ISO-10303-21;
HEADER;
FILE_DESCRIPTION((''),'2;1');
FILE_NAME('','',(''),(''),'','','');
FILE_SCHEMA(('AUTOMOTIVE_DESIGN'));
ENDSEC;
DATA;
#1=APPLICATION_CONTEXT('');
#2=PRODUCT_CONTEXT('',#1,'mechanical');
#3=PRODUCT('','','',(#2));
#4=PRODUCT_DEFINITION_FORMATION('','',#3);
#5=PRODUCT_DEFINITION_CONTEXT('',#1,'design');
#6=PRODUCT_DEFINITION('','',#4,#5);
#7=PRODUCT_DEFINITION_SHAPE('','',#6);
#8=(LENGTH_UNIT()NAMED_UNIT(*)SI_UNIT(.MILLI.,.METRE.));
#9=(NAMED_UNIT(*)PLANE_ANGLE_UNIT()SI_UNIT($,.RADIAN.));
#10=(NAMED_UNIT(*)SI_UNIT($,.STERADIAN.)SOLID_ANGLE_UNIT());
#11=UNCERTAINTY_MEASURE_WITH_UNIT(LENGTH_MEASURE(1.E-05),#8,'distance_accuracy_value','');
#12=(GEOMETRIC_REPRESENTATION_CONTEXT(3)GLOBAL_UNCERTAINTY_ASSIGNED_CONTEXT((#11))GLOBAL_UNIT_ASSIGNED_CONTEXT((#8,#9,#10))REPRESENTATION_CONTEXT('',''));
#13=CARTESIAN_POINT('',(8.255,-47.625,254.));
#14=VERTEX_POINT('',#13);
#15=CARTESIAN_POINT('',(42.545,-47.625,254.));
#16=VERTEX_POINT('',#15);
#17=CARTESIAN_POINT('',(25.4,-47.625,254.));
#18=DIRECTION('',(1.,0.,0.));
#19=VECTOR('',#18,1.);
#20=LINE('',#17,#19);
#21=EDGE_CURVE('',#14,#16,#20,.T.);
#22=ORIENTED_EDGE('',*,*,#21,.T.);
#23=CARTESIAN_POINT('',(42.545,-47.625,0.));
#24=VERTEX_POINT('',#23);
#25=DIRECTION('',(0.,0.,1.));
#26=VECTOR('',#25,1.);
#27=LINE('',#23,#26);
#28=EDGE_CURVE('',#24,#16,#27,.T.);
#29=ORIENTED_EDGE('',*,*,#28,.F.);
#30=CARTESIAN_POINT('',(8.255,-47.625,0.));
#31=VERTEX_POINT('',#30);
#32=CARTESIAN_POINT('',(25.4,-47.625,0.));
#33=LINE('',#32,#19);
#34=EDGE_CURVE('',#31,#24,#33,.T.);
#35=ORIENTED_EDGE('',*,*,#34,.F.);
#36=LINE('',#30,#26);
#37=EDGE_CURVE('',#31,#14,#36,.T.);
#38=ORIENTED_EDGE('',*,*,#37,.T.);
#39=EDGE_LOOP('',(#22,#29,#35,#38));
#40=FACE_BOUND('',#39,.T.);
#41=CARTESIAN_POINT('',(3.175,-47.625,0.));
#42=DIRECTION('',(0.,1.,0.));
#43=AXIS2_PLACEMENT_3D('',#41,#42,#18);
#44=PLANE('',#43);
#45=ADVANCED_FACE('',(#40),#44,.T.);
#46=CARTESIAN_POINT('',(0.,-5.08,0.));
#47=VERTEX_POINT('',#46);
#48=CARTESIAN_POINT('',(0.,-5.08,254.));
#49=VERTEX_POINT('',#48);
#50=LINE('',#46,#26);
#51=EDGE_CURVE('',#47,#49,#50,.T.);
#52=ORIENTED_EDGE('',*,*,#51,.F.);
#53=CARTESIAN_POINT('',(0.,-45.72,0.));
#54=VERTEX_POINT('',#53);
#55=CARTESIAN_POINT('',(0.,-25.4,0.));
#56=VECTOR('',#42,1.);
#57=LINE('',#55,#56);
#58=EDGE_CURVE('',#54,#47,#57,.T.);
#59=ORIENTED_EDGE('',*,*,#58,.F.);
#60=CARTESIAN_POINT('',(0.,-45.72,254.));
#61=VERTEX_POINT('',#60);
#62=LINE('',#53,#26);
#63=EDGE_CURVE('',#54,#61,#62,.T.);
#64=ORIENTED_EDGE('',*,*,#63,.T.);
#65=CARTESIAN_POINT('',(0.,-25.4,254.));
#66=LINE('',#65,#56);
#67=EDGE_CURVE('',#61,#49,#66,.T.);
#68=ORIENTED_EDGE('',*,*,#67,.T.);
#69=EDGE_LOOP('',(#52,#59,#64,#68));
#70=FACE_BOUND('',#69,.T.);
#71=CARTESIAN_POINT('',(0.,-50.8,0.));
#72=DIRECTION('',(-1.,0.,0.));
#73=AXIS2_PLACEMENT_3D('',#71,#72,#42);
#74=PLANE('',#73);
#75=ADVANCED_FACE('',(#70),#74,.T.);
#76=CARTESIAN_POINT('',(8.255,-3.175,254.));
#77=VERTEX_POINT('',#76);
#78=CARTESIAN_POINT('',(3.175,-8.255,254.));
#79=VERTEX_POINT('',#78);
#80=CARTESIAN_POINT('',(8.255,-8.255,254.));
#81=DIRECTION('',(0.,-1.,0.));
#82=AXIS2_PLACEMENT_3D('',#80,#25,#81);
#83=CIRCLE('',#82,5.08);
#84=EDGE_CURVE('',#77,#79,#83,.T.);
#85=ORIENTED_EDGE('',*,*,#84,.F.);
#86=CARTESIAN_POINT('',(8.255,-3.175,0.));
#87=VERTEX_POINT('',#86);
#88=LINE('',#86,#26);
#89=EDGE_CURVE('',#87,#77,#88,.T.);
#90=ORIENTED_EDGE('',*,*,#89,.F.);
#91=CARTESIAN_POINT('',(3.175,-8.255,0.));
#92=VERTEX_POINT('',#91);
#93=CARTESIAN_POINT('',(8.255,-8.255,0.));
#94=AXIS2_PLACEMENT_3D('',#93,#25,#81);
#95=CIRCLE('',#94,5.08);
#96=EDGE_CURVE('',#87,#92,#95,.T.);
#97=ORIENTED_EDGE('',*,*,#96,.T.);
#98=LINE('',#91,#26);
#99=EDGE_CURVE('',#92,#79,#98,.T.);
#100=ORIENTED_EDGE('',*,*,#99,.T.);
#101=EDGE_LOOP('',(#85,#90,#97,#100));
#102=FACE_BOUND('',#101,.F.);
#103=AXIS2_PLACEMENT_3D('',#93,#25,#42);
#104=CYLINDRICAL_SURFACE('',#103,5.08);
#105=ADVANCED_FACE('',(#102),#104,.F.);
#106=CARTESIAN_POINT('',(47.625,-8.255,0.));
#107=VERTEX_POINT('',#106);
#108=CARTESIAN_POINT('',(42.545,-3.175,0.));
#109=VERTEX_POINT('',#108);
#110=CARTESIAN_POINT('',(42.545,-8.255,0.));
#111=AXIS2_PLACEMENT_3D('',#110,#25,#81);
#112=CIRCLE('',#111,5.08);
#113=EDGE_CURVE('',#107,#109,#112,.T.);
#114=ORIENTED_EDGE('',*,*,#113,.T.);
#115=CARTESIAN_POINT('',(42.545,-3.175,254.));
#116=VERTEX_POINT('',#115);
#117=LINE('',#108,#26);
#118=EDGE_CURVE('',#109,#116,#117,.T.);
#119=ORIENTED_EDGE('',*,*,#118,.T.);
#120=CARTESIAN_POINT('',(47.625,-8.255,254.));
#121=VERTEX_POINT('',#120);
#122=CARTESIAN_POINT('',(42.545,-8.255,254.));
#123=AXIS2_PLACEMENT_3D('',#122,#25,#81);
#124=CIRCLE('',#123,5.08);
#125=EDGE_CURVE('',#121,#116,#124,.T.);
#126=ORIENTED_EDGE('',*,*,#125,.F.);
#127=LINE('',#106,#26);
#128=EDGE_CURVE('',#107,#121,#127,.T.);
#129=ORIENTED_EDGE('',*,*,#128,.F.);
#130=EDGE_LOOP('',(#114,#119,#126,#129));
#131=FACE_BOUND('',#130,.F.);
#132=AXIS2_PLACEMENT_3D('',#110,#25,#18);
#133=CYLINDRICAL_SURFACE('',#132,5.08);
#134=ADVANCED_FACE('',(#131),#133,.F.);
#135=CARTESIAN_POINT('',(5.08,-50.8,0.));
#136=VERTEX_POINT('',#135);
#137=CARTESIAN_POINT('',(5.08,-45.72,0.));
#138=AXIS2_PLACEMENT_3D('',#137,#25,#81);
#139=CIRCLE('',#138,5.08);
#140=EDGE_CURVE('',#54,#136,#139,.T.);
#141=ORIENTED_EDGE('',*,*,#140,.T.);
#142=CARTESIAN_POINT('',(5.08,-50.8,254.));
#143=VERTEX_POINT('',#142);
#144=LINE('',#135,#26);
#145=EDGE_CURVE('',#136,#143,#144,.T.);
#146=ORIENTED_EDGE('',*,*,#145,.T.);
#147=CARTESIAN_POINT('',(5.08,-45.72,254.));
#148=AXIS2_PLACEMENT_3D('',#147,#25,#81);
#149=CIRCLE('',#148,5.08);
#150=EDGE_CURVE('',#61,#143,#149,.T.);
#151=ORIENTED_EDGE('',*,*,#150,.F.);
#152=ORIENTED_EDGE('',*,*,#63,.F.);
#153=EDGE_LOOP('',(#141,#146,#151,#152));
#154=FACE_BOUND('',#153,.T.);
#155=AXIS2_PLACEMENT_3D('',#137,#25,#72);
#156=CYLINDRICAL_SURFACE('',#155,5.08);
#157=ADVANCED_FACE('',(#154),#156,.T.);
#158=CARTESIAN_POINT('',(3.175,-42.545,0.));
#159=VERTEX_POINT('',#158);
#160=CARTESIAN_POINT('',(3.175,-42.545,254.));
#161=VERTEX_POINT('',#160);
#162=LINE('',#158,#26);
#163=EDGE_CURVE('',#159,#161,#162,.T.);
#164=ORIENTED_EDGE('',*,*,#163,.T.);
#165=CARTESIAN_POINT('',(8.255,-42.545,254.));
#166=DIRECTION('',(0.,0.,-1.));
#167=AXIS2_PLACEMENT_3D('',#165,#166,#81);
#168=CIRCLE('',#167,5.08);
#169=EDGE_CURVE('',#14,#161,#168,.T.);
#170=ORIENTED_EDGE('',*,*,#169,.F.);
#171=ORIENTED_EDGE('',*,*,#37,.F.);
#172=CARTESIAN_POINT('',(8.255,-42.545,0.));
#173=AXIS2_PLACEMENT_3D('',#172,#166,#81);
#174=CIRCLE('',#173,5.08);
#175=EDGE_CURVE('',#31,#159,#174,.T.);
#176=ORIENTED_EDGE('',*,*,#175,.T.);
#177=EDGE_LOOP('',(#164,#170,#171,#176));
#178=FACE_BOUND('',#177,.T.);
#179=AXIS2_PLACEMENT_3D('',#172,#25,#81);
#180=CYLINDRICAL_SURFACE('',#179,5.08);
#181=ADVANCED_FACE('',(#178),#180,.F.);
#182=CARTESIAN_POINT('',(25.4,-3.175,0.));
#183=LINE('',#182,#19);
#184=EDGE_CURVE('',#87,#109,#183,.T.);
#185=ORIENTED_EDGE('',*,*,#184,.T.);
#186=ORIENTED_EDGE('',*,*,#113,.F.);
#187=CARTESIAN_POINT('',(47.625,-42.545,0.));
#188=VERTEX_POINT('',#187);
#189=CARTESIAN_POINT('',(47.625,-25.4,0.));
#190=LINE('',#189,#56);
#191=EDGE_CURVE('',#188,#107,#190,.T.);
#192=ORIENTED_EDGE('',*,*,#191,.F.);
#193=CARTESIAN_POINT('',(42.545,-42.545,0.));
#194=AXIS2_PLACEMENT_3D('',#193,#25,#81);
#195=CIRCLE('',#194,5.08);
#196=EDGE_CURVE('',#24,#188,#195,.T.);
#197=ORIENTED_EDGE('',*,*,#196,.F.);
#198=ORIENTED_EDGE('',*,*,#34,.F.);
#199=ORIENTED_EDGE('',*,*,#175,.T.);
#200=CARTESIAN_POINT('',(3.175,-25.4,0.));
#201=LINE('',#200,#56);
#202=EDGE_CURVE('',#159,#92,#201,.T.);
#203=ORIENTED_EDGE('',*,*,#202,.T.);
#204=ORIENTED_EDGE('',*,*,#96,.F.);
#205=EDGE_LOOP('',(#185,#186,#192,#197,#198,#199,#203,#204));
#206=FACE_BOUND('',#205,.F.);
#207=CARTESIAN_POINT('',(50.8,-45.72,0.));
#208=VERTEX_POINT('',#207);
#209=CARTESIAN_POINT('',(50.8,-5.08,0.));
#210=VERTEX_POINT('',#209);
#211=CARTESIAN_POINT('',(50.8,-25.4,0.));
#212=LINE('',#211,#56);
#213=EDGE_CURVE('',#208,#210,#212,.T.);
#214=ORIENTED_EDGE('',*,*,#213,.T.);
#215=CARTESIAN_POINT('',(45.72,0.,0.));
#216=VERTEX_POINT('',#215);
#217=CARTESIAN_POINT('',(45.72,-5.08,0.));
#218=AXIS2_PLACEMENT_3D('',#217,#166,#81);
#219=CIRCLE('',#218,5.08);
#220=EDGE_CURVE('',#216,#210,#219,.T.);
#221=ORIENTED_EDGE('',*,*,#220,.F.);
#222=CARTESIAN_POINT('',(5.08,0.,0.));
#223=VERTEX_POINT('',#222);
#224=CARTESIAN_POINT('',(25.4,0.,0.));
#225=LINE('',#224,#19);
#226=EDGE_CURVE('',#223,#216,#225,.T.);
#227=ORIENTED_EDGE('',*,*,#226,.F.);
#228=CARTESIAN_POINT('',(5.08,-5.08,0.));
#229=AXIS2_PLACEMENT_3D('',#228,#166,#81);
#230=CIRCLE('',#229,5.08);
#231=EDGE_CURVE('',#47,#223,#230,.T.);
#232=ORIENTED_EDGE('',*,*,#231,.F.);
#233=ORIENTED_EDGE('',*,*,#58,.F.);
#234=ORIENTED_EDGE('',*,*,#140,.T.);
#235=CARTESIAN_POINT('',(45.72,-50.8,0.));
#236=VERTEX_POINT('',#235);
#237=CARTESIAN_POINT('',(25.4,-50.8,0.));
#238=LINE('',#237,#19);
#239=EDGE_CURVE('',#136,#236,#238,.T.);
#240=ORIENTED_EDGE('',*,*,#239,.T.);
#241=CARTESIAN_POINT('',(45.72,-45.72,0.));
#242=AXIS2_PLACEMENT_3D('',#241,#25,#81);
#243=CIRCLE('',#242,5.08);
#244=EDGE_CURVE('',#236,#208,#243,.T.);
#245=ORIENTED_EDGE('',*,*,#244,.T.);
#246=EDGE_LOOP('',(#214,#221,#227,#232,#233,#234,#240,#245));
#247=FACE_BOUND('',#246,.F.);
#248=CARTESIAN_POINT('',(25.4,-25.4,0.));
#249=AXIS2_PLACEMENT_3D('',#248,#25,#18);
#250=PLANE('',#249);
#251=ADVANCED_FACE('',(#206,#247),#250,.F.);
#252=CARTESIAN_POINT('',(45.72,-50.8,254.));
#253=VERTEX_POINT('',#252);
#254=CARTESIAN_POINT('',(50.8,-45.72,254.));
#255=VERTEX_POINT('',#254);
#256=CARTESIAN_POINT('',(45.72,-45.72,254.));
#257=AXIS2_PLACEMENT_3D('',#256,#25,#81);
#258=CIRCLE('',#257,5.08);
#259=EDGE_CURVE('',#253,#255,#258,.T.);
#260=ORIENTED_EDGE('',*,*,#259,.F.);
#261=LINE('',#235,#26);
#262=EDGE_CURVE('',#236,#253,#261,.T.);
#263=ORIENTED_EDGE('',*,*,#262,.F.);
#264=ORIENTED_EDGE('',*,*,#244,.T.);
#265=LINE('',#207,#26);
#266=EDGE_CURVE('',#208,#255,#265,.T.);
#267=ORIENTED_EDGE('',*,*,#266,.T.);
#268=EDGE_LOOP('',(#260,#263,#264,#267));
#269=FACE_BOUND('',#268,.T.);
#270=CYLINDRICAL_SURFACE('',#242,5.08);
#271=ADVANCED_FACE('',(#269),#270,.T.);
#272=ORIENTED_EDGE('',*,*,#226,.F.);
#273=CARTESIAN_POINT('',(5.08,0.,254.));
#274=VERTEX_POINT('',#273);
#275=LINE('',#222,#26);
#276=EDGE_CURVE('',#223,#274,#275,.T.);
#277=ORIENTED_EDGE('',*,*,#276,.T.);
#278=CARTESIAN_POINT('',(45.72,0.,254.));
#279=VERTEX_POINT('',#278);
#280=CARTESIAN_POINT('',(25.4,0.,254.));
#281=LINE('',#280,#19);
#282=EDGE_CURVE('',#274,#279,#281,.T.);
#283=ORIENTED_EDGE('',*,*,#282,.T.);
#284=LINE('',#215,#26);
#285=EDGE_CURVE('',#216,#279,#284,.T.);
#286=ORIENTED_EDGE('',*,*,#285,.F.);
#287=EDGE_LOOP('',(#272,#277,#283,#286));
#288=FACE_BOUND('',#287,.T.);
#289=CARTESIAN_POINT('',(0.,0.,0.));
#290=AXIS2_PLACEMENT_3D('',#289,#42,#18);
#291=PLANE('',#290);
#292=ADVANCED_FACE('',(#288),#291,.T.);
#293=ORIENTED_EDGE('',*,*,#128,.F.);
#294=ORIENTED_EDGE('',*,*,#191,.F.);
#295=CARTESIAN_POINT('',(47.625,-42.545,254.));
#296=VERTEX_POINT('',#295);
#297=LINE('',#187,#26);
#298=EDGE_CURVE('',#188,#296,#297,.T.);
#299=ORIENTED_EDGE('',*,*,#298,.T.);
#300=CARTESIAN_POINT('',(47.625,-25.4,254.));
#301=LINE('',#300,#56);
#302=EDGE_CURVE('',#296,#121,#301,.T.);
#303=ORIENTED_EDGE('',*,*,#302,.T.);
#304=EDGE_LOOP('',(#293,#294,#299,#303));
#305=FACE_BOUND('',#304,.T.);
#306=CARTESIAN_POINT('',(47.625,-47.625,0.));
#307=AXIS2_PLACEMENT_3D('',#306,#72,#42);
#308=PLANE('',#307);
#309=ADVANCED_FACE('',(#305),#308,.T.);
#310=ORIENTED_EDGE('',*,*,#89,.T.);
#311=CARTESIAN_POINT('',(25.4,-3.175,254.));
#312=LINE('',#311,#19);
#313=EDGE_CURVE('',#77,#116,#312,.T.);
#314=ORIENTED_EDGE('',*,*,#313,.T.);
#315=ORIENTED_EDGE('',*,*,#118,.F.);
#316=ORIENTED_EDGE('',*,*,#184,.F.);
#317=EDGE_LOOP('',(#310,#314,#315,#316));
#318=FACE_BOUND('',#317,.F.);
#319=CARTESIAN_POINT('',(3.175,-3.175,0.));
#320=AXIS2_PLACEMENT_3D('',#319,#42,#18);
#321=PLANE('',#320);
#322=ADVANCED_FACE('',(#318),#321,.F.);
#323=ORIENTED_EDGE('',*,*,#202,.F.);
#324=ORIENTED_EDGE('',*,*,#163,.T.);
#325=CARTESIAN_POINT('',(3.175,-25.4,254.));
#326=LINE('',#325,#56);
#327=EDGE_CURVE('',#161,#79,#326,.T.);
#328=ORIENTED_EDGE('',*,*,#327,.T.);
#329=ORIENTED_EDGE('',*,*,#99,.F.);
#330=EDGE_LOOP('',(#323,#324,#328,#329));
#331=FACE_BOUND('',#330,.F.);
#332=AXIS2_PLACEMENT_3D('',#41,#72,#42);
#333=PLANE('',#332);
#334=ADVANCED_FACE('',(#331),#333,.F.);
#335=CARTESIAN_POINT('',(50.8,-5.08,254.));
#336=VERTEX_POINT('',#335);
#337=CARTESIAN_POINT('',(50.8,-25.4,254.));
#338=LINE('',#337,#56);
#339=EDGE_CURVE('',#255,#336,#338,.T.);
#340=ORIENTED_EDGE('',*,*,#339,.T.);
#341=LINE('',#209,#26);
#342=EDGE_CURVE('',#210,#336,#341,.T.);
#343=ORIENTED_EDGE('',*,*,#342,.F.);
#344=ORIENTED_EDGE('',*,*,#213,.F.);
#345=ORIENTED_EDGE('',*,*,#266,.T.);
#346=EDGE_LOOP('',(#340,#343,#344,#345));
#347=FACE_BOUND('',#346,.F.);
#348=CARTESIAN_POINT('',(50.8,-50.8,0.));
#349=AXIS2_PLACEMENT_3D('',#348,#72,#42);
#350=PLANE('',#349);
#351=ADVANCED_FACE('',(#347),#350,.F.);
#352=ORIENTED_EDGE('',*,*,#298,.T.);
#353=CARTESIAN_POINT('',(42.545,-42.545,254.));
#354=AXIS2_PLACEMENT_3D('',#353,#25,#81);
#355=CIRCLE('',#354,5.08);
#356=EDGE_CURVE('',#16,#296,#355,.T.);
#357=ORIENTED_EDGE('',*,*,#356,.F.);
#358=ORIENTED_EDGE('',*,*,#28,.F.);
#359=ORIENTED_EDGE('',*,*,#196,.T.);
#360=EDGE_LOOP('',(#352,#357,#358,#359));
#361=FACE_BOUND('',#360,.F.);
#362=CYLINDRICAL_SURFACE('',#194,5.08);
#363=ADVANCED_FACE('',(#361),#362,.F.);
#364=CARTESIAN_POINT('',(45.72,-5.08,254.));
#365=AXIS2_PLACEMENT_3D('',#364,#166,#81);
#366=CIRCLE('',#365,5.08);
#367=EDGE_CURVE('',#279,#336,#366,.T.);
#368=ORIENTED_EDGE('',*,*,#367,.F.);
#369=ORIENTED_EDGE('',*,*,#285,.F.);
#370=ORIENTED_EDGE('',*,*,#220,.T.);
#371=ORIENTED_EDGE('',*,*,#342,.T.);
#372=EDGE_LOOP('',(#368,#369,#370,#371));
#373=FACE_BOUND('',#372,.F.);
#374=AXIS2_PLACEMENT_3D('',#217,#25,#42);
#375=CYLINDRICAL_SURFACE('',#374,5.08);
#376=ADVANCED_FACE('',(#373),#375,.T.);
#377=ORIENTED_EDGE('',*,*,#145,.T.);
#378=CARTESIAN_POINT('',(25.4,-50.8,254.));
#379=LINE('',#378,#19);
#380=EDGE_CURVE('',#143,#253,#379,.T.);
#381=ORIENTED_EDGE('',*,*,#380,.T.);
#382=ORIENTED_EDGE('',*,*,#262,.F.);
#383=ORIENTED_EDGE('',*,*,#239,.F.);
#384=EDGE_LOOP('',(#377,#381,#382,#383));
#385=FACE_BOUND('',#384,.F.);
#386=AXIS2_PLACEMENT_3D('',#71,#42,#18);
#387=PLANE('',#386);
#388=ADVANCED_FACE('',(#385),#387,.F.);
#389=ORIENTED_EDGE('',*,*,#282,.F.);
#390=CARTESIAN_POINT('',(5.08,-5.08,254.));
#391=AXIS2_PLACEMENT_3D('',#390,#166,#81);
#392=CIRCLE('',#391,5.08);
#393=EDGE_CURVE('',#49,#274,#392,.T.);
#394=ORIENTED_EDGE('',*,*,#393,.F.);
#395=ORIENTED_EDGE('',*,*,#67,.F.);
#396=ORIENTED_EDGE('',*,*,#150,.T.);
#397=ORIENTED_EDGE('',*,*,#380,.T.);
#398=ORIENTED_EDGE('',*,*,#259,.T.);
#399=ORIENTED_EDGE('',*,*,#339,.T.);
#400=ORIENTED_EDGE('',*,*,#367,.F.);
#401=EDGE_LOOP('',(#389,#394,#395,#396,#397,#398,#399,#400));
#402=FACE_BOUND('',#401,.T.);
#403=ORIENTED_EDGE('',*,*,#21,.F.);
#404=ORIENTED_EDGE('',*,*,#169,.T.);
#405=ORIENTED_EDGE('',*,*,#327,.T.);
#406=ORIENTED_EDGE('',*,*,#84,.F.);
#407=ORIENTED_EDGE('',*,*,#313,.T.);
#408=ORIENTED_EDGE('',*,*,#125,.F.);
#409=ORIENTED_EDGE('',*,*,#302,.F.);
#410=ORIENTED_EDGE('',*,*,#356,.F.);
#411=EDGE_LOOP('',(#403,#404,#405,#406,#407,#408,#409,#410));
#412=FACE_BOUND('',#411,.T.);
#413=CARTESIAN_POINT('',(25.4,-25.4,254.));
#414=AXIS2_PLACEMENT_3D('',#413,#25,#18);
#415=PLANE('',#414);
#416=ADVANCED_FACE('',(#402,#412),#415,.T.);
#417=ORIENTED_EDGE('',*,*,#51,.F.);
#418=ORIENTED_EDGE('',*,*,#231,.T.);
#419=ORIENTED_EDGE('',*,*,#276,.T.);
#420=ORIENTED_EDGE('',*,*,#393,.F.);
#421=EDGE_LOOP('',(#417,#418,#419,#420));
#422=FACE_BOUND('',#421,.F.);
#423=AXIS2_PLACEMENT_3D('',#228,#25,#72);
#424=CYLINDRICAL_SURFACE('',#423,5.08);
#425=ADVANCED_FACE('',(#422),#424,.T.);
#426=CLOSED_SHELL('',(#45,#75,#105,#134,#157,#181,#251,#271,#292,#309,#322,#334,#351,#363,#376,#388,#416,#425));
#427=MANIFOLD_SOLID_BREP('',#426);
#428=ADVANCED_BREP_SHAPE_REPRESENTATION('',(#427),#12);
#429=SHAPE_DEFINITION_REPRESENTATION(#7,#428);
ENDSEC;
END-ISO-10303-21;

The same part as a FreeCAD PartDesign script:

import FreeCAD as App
import Part
import Sketcher
from FreeCAD import Vector
Q = App.Units.Quantity


def edges_at(feature, points):
    """Names of the edges that pass closest to the given points."""
    edges = feature.Shape.Edges
    near = lambda p: min(range(len(edges)), key=lambda i: edges[i].distToShape(Part.Vertex(*p))[0])
    return sorted({f"Edge{near(p) + 1}" for p in points})


def add_polygon(sketch, points):
    """Adds a closed chain of lines whose ends are joined by coincident constraints."""
    first, n = sketch.GeometryCount, len(points)
    for a, b in zip(points, points[1:] + points[:1]):
        sketch.addGeometry(Part.LineSegment(App.Vector(*a, 0), App.Vector(*b, 0)), False)
    for i in range(n):
        sketch.addConstraint(Sketcher.Constraint("Coincident", first + i, 2, first + (i + 1) % n, 1))

doc = App.newDocument("Part")
body = doc.addObject("PartDesign::Body", "Body")

# Sketch on XY plane
sketch1 = body.newObject("Sketcher::SketchObject", "Sketch")
sketch1.AttachmentSupport = (doc.getObject("XY_Plane"), [""])
sketch1.MapMode = "FlatFace"
add_polygon(sketch1, [(0, 0), (0, -51), (51, -51), (51, 0)])  # lines 0-3
add_polygon(sketch1, [(48, -48), (3, -48), (3, -3), (48, -3)])  # lines 4-7
sketch1.addConstraint(Sketcher.Constraint("Vertical", 0))
sketch1.addConstraint(Sketcher.Constraint("Horizontal", 1))
sketch1.addConstraint(Sketcher.Constraint("Vertical", 2))
sketch1.addConstraint(Sketcher.Constraint("Horizontal", 3))
sketch1.addConstraint(Sketcher.Constraint("Horizontal", 4))
sketch1.addConstraint(Sketcher.Constraint("Vertical", 5))
sketch1.addConstraint(Sketcher.Constraint("Horizontal", 6))
sketch1.addConstraint(Sketcher.Constraint("Vertical", 7))
sketch1.addConstraint(Sketcher.Constraint("Coincident", 3, 2, -1, 1))
sketch1.addConstraint(Sketcher.Constraint("Equal", 3, 0))
sketch1.addConstraint(Sketcher.Constraint("Equal", 6, 5))
sketch1.addConstraint(Sketcher.Constraint("DistanceX", 1, 1, 1, 2, Q("2 in")))
sketch1.addConstraint(Sketcher.Constraint("DistanceX", 4, 2, 4, 1, Q("1.75 in")))
sketch1.addConstraint(Sketcher.Constraint("DistanceX", -1, 1, 4, 2, Q("0.125 in")))
sketch1.addConstraint(Sketcher.Constraint("DistanceY", 4, 2, -1, 1, Q("1.875 in")))
pad1 = body.newObject("PartDesign::Pad", "Pad")
pad1.Profile = sketch1
pad1.Length = Q("10 in")
doc.recompute()

fillet = body.newObject("PartDesign::Fillet", "Fillet")
fillet.Base = (pad1, edges_at(pad1, [
    (50.8, -50.8, 127),
    (0, -50.8, 127),
    (50.8, 0, 127),
    (0, 0, 127),
    (47.625, -3.175, 127),
    (3.175, -3.175, 127),
    (3.175, -47.625, 127),
    (47.625, -47.625, 127),
]))
fillet.Radius = Q("0.2 in")

doc.recompute()
